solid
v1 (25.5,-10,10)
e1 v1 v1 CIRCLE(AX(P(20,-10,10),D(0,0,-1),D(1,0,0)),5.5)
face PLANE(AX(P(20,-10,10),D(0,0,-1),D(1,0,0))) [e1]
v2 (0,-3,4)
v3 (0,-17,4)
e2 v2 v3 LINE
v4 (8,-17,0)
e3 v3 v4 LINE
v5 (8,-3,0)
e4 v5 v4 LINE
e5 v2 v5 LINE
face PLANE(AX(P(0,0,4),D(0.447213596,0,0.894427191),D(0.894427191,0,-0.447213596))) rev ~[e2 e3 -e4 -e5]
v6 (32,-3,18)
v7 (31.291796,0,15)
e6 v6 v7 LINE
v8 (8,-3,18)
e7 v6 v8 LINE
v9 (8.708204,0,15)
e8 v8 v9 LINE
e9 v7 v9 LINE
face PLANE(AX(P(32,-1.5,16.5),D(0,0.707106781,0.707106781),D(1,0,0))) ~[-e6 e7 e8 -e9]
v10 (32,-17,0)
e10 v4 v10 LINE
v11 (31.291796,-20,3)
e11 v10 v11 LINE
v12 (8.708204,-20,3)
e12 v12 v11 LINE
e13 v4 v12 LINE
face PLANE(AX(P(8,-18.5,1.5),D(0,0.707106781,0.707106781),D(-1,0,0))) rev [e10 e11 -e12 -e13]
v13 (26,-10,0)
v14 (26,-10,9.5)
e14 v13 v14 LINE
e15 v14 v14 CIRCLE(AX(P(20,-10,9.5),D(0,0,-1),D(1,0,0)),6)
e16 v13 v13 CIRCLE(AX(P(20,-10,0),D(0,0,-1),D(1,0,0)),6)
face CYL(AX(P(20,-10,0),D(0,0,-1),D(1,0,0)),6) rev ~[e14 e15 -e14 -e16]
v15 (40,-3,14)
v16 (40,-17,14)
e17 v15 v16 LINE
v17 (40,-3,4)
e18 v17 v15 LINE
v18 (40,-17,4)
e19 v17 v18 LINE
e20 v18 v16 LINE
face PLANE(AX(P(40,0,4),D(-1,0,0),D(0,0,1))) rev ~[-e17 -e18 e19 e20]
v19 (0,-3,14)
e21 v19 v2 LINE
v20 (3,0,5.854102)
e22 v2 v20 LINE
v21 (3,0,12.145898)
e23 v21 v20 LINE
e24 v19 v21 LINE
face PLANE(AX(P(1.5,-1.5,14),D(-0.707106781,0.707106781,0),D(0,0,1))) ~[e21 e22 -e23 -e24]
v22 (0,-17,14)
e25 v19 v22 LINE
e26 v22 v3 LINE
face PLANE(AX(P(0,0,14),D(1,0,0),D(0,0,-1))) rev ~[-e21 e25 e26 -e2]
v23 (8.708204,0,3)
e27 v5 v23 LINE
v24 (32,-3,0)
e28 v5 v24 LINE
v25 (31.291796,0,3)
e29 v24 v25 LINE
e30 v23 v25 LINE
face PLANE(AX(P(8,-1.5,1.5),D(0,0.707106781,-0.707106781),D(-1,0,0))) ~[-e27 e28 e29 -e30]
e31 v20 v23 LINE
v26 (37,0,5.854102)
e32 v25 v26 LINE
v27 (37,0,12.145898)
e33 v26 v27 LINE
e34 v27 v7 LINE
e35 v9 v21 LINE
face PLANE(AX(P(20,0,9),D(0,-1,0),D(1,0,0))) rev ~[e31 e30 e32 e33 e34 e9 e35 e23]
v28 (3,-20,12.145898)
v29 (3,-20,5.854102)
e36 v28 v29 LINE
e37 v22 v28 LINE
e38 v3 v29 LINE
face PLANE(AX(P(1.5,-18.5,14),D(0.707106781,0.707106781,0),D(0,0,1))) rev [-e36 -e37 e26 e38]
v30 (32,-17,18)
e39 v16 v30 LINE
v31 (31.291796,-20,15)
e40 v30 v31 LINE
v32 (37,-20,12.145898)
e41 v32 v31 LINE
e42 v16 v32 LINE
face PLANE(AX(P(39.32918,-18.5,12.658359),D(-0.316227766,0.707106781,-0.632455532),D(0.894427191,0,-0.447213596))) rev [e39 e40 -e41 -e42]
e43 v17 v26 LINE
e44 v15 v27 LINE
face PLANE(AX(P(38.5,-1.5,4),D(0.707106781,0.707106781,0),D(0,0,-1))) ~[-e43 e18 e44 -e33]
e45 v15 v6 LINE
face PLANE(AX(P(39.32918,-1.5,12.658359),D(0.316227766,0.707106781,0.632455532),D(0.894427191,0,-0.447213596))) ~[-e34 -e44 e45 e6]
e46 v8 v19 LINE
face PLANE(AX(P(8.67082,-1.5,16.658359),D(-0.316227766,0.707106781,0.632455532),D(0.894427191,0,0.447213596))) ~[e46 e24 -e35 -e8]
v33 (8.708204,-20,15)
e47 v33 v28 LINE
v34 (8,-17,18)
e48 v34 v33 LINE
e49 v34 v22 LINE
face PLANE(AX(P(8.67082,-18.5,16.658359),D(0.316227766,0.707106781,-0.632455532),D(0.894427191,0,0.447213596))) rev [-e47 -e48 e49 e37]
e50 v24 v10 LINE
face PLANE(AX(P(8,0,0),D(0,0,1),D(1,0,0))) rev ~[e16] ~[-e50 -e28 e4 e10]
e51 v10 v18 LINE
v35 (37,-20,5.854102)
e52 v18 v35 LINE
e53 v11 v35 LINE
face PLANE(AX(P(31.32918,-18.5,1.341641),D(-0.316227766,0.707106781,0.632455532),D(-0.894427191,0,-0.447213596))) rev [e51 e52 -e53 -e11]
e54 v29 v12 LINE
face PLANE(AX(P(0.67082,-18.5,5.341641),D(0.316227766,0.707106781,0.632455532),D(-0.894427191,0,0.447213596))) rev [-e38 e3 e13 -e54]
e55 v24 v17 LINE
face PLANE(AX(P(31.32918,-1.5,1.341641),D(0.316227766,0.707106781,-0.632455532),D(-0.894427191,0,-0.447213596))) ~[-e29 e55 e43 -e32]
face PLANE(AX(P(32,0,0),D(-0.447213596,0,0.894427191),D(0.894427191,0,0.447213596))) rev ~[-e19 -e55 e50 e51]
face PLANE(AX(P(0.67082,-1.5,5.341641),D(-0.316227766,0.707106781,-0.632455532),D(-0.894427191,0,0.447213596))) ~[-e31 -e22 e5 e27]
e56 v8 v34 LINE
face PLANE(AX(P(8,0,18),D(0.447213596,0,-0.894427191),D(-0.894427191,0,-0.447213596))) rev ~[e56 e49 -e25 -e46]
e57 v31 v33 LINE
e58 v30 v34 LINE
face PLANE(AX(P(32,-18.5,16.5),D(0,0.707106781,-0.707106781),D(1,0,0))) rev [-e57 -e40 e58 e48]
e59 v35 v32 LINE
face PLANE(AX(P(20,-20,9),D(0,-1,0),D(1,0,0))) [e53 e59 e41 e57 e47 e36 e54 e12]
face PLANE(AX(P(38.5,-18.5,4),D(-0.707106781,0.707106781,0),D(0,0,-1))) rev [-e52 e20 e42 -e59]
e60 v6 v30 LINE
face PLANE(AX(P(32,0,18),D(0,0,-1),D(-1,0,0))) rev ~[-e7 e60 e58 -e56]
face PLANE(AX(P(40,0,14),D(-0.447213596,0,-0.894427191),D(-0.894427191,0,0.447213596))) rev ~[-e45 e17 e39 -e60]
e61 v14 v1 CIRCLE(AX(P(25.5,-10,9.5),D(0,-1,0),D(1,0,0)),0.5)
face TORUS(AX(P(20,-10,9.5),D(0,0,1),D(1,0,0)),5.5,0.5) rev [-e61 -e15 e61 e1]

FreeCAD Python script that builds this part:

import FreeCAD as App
import Part
import Sketcher
from FreeCAD import Vector
Q = App.Units.Quantity


def edges_at(feature, points):
    """Names of the edges that pass closest to the given points."""
    edges = feature.Shape.Edges
    near = lambda p: min(range(len(edges)), key=lambda i: edges[i].distToShape(Part.Vertex(*p))[0])
    return sorted({f"Edge{near(p) + 1}" for p in points})

doc = App.newDocument("Part")
params = doc.addObject("Spreadsheet::Sheet", "Params")
for row, (alias, value) in enumerate([
    ("sketch1_width", "24 mm"),
    ("sketch1_height", "10 mm"),
    ("pad1_length", "20 mm"),
    ("chamfer_size", "3 mm"),
    ("sketch2_diameter", "12 mm"),
    ("pocket1_length", "10 mm"),
    ("fillet_radius", "0.5 mm"),
], start=1):
    params.set(f"A{row}", alias)
    params.set(f"B{row}", "=" + value)
    params.setAlias(f"B{row}", alias)

body = doc.addObject("PartDesign::Body", "Body")

# Sketch on XZ plane
sketch1 = body.newObject("Sketcher::SketchObject", "Sketch")
sketch1.AttachmentSupport = (doc.getObject("XZ_Plane"), [""])
sketch1.MapMode = "FlatFace"
sketch1.addGeometry(Part.LineSegment(Vector(0, 4, 0), Vector(8, 0, 0)), False)
sketch1.addGeometry(Part.LineSegment(Vector(8, 0, 0), Vector(32, 0, 0)), False)
sketch1.addGeometry(Part.LineSegment(Vector(32, 0, 0), Vector(40, 4, 0)), False)
sketch1.addGeometry(Part.LineSegment(Vector(40, 4, 0), Vector(40, 14, 0)), False)
sketch1.addGeometry(Part.LineSegment(Vector(40, 14, 0), Vector(32, 18, 0)), False)
sketch1.addGeometry(Part.LineSegment(Vector(32, 18, 0), Vector(8, 18, 0)), False)
sketch1.addGeometry(Part.LineSegment(Vector(8, 18, 0), Vector(0, 14, 0)), False)
sketch1.addGeometry(Part.LineSegment(Vector(0, 14, 0), Vector(0, 4, 0)), False)
sketch1.addConstraint(Sketcher.Constraint("Coincident", 0, 2, 1, 1))
sketch1.addConstraint(Sketcher.Constraint("Coincident", 1, 2, 2, 1))
sketch1.addConstraint(Sketcher.Constraint("Coincident", 2, 2, 3, 1))
sketch1.addConstraint(Sketcher.Constraint("Coincident", 3, 2, 4, 1))
sketch1.addConstraint(Sketcher.Constraint("Coincident", 4, 2, 5, 1))
sketch1.addConstraint(Sketcher.Constraint("Coincident", 5, 2, 6, 1))
sketch1.addConstraint(Sketcher.Constraint("Coincident", 6, 2, 7, 1))
sketch1.addConstraint(Sketcher.Constraint("Coincident", 7, 2, 0, 1))
sketch1.addConstraint(Sketcher.Constraint("Horizontal", 1))
sketch1.addConstraint(Sketcher.Constraint("Vertical", 3))
sketch1.addConstraint(Sketcher.Constraint("Horizontal", 5))
sketch1.addConstraint(Sketcher.Constraint("Vertical", 7))
sketch1.addConstraint(Sketcher.Constraint("PointOnObject", 0, 2, -1))
sketch1.addConstraint(Sketcher.Constraint("PointOnObject", 6, 2, -2))
sketch1.addConstraint(Sketcher.Constraint("Parallel", 0, 4))
sketch1.addConstraint(Sketcher.Constraint("Parallel", 2, 6))
sketch1.addConstraint(Sketcher.Constraint("Horizontal", 3, 2, 6, 2))
sketch1.addConstraint(Sketcher.Constraint("Horizontal", 2, 2, 7, 2))
sketch1.addConstraint(Sketcher.Constraint("Vertical", 1, 2, 4, 2))
sketch1.addConstraint(Sketcher.Constraint("Vertical", 0, 2, 5, 2))
sketch1.addConstraint(Sketcher.Constraint("DistanceX", 1, 1, 1, 2, Q("24 mm")))
sketch1.addConstraint(Sketcher.Constraint("DistanceY", 3, 1, 3, 2, Q("10 mm")))
sketch1.addConstraint(Sketcher.Constraint("DistanceX", -1, 1, 0, 2, Q("8 mm")))
sketch1.addConstraint(Sketcher.Constraint("DistanceY", -1, 1, 2, 2, Q("4 mm")))
sketch1.setExpression("Constraints[20]", "Params.sketch1_width")
sketch1.setExpression("Constraints[21]", "Params.sketch1_height")
pad1 = body.newObject("PartDesign::Pad", "Pad")
pad1.Profile = sketch1
pad1.setExpression("Length", "Params.pad1_length")
doc.recompute()

chamfer = body.newObject("PartDesign::Chamfer", "Chamfer")
chamfer.Base = (pad1, edges_at(pad1, [
    (4, -20, 2),
    (20, -20, 0),
    (36, -20, 2),
    (40, -20, 9),
    (36, -20, 16),
    (20, -20, 18),
    (4, -20, 16),
    (0, -20, 9),
    (4, 0, 2),
    (20, 0, 0),
    (36, 0, 2),
    (40, 0, 9),
    (36, 0, 16),
    (20, 0, 18),
    (4, 0, 16),
    (0, 0, 9),
]))
chamfer.setExpression("Size", "Params.chamfer_size")

# Sketch on XY plane
sketch2 = body.newObject("Sketcher::SketchObject", "Sketch001")
sketch2.AttachmentSupport = (doc.getObject("XY_Plane"), [""])
sketch2.MapMode = "FlatFace"
sketch2.addGeometry(Part.Circle(Vector(20, -10, 0), Vector(0, 0, 1), 6), False)
sketch2.addConstraint(Sketcher.Constraint("Diameter", 0, Q("12 mm")))
sketch2.addConstraint(Sketcher.Constraint("DistanceX", -1, 1, 0, 3, Q("20 mm")))
sketch2.addConstraint(Sketcher.Constraint("DistanceY", 0, 3, -1, 1, Q("10 mm")))
sketch2.setExpression("Constraints[0]", "Params.sketch2_diameter")
pocket1 = body.newObject("PartDesign::Pocket", "Pocket")
pocket1.Profile = sketch2
pocket1.setExpression("Length", "Params.pocket1_length")
pocket1.Reversed = True
doc.recompute()

fillet = body.newObject("PartDesign::Fillet", "Fillet")
fillet.Base = (pocket1, edges_at(pocket1, [(14, -10, 10)]))
fillet.setExpression("Radius", "Params.fillet_radius")

doc.recompute()
